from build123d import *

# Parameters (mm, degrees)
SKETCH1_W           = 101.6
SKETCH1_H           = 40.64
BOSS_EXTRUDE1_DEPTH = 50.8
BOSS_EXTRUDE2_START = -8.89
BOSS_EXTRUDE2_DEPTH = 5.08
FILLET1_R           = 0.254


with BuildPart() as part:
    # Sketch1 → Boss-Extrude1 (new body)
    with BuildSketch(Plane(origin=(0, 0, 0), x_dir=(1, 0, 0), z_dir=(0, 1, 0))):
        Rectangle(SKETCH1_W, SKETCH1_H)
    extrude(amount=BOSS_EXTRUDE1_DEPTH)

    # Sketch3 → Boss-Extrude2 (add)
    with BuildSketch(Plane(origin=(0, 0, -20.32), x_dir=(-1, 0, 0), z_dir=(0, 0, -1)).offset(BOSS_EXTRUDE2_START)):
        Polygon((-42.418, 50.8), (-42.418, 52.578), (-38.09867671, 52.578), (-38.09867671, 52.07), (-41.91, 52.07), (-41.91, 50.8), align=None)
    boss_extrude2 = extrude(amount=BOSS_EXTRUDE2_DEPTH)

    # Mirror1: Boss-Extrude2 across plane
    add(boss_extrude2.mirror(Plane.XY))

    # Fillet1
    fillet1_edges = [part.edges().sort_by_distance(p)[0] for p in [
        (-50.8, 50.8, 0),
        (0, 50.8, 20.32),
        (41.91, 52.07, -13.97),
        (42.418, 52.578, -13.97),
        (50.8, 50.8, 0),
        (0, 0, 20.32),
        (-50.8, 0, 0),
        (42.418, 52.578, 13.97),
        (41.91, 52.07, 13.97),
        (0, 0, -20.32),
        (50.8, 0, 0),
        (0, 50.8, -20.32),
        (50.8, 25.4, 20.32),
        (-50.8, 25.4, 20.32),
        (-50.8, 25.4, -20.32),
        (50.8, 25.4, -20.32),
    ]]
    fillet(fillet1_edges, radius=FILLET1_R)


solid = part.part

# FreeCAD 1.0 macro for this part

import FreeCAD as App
import Part
import Sketcher

V = App.Vector
Q = App.Units.Quantity


def edges_at(feature, points):
    """Names of the edges that pass closest to the given points."""
    edges = feature.Shape.Edges
    near = lambda p: min(range(len(edges)), key=lambda i: edges[i].distToShape(Part.Vertex(*p))[0])
    return sorted({f"Edge{near(p) + 1}" for p in points})


def add_polygon(sketch, points):
    """Adds a closed chain of lines whose ends are joined by coincident constraints."""
    first, n = sketch.GeometryCount, len(points)
    for a, b in zip(points, points[1:] + points[:1]):
        sketch.addGeometry(Part.LineSegment(App.Vector(*a, 0), App.Vector(*b, 0)), False)
    for i in range(n):
        sketch.addConstraint(Sketcher.Constraint("Coincident", first + i, 2, first + (i + 1) % n, 1))

doc = App.newDocument("Part")
params = doc.addObject("Spreadsheet::Sheet", "Params")
for row, (alias, value) in enumerate([
    ("sketch1_width", "4 in"),
    ("sketch1_height", "1.6 in"),
    ("pad1_length", "2 in"),
    ("sketch2_width", "0.02 in"),
    ("sketch2_height", "0.07 in"),
    ("pad2_length", "0.2 in"),
    ("fillet_radius", "0.01 in"),
], start=1):
    params.set(f"A{row}", alias)
    params.set(f"B{row}", "=" + value)
    params.setAlias(f"B{row}", alias)

body = doc.addObject("PartDesign::Body", "Body")

# Sketch on XZ plane
sketch1 = body.newObject("Sketcher::SketchObject", "Sketch")
sketch1.AttachmentSupport = (doc.getObject("XZ_Plane"), [""])
sketch1.MapMode = "FlatFace"
add_polygon(sketch1, [(-51, -20), (-51, 20), (51, 20), (51, -20)])  # lines 0-3
sketch1.addConstraint(Sketcher.Constraint("Vertical", 0))
sketch1.addConstraint(Sketcher.Constraint("Horizontal", 1))
sketch1.addConstraint(Sketcher.Constraint("Vertical", 2))
sketch1.addConstraint(Sketcher.Constraint("Horizontal", 3))
sketch1.addConstraint(Sketcher.Constraint("Symmetric", 0, 2, 2, 2, -1, 1))
sketch1.addConstraint(Sketcher.Constraint("DistanceX", 1, 1, 1, 2, Q("4 in")))
sketch1.addConstraint(Sketcher.Constraint("DistanceY", 0, 1, 0, 2, Q("1.6 in")))
sketch1.setExpression("Constraints[9]", "Params.sketch1_width")
sketch1.setExpression("Constraints[10]", "Params.sketch1_height")
pad1 = body.newObject("PartDesign::Pad", "Pad")
pad1.Profile = sketch1
pad1.setExpression("Length", "Params.pad1_length")
pad1.Reversed = True

# Sketch on XY plane
sketch2 = body.newObject("Sketcher::SketchObject", "Sketch001")
sketch2.AttachmentSupport = (doc.getObject("XY_Plane"), [""])
sketch2.MapMode = "FlatFace"
sketch2.AttachmentOffset = App.Placement(V(0, 0, -0.45 * 25.4), App.Rotation())
add_polygon(sketch2, [(42.4, 52.6), (42.4, 50.8), (41.9, 50.8), (41.9, 52.1), (38.1, 52.1), (38.1, 52.6)])  # lines 0-5
sketch2.addConstraint(Sketcher.Constraint("Vertical", 0))
sketch2.addConstraint(Sketcher.Constraint("Horizontal", 1))
sketch2.addConstraint(Sketcher.Constraint("Vertical", 2))
sketch2.addConstraint(Sketcher.Constraint("Horizontal", 3))
sketch2.addConstraint(Sketcher.Constraint("Vertical", 4))
sketch2.addConstraint(Sketcher.Constraint("Horizontal", 5))
sketch2.addConstraint(Sketcher.Constraint("Equal", 1, 4))
sketch2.addConstraint(Sketcher.Constraint("DistanceY", -1, 1, 0, 2, Q("2 in")))
sketch2.addConstraint(Sketcher.Constraint("DistanceX", 1, 2, 1, 1, Q("0.02 in")))
sketch2.addConstraint(Sketcher.Constraint("DistanceY", 0, 2, 0, 1, Q("0.07 in")))
sketch2.addConstraint(Sketcher.Constraint("DistanceX", -1, 1, 0, 2, Q("1.67 in")))
sketch2.addConstraint(Sketcher.Constraint("DistanceX", 3, 2, 3, 1, Q("3.811323 mm")))
sketch2.setExpression("Constraints[14]", "Params.sketch2_width")
sketch2.setExpression("Constraints[15]", "Params.sketch2_height")
pad2 = body.newObject("PartDesign::Pad", "Pad001")
pad2.Profile = sketch2
pad2.setExpression("Length", "Params.pad2_length")
pad2.Reversed = True
doc.recompute()

mirrored = body.newObject("PartDesign::Mirrored", "Mirrored")
mirrored.Originals = [pad2]
mirrored.MirrorPlane = (doc.getObject("XY_Plane"), [""])
body.Tip = mirrored
doc.recompute()

fillet = body.newObject("PartDesign::Fillet", "Fillet")
fillet.Base = (mirrored, edges_at(mirrored, [
    (-50.8, 50.8, 0),
    (0, 50.8, 20.32),
    (41.91, 52.07, -13.97),
    (42.418, 52.578, -13.97),
    (50.8, 50.8, 0),
    (0, 0, 20.32),
    (-50.8, 0, 0),
    (42.418, 52.578, 13.97),
    (41.91, 52.07, 13.97),
    (0, 0, -20.32),
    (50.8, 0, 0),
    (0, 50.8, -20.32),
    (50.8, 25.4, 20.32),
    (-50.8, 25.4, 20.32),
    (-50.8, 25.4, -20.32),
    (50.8, 25.4, -20.32),
]))
fillet.setExpression("Radius", "Params.fillet_radius")

doc.recompute()
